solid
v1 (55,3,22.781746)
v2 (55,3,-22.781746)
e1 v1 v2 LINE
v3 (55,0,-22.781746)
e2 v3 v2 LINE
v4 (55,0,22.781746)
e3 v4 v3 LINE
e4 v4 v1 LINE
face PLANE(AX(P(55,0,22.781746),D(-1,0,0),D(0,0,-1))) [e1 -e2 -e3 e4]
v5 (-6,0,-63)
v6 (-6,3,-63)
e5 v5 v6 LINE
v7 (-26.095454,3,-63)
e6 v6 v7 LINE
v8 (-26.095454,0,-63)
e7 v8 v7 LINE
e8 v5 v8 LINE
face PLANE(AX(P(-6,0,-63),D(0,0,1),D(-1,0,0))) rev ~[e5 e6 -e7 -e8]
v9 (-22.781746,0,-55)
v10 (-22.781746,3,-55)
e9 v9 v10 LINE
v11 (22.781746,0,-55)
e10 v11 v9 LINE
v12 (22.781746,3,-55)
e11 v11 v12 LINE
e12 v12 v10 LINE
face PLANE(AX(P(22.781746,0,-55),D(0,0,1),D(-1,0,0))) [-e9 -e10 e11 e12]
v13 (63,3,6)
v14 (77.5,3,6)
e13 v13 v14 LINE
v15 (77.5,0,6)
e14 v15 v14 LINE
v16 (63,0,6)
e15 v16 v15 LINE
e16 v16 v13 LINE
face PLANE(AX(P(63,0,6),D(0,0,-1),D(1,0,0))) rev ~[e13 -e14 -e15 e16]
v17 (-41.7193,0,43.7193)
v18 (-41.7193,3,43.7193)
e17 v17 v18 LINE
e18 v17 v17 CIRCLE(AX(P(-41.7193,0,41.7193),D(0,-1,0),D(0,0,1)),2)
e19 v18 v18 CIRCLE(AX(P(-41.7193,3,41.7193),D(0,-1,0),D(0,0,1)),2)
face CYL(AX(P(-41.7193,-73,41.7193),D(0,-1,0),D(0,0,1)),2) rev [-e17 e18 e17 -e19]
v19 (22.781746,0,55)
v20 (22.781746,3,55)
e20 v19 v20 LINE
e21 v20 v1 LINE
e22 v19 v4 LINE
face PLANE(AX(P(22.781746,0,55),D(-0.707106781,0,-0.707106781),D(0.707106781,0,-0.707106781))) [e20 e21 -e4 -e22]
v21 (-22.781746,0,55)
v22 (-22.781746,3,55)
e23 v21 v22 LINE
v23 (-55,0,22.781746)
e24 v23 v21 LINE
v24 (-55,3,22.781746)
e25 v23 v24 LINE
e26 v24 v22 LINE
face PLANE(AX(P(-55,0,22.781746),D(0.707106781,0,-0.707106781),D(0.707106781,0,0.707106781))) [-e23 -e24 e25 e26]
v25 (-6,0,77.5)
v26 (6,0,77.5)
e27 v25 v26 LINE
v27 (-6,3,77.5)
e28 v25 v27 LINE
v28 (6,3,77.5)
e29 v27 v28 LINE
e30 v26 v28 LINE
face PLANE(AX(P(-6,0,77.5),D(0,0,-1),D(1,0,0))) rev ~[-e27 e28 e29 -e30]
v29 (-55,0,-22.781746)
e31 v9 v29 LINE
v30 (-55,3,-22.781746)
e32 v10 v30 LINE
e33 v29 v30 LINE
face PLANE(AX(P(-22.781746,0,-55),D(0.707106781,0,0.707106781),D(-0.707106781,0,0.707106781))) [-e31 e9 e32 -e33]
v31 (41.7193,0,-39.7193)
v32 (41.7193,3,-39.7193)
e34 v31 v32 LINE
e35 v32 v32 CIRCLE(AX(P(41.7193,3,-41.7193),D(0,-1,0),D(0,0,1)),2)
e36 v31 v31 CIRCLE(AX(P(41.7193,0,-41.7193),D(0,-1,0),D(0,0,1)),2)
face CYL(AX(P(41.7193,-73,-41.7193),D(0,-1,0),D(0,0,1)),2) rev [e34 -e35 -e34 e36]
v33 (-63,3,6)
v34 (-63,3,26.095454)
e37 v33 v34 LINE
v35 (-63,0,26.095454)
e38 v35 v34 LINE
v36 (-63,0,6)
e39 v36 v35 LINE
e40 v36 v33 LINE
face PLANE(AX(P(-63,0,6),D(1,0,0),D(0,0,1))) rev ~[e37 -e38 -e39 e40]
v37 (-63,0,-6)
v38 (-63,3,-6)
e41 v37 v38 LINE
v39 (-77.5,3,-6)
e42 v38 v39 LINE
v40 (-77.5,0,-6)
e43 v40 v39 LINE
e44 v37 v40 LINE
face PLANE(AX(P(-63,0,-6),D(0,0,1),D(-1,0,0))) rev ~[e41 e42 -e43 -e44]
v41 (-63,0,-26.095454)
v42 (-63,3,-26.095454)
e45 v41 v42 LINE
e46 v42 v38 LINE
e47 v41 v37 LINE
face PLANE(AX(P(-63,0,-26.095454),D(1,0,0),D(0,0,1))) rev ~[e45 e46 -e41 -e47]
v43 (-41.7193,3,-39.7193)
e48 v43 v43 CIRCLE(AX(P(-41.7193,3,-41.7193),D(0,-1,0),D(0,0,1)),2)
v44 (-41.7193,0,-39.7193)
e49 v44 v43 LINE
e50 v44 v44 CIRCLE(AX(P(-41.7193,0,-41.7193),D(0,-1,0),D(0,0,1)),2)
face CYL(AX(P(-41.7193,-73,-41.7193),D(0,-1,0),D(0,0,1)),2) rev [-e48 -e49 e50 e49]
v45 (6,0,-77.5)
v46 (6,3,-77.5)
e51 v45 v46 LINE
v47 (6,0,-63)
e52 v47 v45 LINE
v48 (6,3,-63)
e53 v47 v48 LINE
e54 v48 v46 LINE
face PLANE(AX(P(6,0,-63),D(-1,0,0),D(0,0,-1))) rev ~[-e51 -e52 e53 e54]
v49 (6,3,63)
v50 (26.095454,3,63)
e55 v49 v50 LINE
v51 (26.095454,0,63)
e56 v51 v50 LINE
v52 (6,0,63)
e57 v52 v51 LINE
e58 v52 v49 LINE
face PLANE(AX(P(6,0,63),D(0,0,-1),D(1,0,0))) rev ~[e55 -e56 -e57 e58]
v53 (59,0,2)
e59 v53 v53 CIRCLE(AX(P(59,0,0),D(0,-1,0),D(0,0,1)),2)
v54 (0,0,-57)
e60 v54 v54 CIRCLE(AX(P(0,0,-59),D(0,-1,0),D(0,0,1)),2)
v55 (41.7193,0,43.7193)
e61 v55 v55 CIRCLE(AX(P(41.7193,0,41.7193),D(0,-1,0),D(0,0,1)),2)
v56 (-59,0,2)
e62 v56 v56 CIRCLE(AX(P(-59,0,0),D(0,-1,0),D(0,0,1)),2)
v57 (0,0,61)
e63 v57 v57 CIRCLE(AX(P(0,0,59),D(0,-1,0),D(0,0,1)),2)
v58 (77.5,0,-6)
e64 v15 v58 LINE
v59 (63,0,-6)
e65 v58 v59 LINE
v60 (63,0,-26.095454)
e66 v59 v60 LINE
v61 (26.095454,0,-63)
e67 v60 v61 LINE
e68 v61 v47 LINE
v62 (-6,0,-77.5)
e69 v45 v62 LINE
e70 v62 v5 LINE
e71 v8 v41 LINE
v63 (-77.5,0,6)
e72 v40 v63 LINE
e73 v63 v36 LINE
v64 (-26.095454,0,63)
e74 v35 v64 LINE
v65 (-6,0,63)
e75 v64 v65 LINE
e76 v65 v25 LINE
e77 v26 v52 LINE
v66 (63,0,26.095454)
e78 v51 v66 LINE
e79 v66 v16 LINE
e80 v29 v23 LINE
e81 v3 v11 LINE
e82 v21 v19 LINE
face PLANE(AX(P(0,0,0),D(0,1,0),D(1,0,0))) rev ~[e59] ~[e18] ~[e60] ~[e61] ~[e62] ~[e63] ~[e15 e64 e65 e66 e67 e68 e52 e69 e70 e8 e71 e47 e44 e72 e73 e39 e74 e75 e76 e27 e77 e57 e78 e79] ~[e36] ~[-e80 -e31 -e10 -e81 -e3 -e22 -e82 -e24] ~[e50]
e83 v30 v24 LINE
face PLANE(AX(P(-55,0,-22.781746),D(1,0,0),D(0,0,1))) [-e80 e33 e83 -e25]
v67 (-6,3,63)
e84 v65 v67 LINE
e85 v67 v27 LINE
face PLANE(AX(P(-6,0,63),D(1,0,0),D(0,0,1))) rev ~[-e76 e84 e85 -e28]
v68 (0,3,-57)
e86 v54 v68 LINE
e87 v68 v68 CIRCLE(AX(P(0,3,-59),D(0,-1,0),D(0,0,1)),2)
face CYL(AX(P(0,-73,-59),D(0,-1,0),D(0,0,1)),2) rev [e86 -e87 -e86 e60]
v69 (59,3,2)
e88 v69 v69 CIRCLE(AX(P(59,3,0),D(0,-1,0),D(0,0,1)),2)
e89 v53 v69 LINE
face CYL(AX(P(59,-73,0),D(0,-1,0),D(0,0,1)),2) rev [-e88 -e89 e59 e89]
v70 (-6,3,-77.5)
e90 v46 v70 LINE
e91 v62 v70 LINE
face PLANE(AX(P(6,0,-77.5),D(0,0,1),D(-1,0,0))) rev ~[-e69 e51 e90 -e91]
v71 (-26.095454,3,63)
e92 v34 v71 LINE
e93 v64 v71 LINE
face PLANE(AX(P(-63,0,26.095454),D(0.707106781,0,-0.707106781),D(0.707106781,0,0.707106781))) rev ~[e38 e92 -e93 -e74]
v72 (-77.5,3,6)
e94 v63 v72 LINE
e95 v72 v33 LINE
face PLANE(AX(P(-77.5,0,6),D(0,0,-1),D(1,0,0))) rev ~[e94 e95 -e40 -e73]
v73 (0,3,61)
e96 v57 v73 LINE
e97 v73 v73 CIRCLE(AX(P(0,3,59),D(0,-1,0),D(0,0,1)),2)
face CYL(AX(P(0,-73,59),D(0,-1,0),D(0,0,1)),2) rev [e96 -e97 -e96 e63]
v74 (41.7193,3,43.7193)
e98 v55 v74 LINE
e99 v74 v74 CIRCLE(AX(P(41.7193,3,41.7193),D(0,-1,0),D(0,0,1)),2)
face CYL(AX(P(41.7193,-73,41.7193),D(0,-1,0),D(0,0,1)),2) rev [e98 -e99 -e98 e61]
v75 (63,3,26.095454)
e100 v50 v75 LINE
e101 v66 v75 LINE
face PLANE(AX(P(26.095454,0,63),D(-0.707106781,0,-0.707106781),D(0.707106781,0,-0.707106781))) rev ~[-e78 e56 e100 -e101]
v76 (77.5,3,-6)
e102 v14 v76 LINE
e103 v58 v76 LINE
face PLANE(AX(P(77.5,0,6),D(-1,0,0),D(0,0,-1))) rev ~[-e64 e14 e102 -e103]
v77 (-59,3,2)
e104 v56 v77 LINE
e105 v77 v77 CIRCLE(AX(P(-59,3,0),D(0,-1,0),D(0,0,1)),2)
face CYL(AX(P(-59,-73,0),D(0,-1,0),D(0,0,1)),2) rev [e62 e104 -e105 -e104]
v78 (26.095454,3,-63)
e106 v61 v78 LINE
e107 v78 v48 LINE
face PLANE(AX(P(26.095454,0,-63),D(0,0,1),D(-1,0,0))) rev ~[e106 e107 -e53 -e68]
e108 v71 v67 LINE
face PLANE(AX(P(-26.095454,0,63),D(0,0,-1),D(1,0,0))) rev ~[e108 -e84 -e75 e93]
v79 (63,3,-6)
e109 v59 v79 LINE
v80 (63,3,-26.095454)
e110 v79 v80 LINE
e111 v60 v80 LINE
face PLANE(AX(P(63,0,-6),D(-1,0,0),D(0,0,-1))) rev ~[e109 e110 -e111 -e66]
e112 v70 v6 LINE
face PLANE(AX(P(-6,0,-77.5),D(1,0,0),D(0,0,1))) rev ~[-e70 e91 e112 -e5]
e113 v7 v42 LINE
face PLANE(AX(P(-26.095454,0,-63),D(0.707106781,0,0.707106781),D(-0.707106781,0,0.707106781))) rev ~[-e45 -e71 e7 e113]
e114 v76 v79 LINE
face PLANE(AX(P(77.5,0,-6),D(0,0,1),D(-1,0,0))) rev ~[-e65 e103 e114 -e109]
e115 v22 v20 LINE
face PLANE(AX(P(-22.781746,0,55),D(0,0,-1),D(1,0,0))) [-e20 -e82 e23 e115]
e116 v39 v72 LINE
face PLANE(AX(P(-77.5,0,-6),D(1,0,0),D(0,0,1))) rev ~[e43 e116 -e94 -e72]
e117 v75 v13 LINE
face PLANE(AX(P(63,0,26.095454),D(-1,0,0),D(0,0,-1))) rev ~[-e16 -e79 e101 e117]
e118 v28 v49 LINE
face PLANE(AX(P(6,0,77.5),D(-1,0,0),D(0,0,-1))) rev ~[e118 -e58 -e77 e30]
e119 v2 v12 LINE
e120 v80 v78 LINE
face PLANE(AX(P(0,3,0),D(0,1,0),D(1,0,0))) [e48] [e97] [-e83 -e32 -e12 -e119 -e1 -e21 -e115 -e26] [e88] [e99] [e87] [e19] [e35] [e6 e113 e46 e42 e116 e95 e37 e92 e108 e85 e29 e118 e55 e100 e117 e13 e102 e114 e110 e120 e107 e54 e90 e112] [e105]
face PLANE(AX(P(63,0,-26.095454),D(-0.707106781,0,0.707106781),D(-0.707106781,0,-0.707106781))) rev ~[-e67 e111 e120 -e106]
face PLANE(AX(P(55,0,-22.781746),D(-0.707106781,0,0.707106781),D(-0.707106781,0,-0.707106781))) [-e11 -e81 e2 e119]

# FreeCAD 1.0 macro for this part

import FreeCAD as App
import Part
import Sketcher

V = App.Vector
Q = App.Units.Quantity


def add_polygon(sketch, points):
    """Adds a closed chain of lines whose ends are joined by coincident constraints."""
    first, n = sketch.GeometryCount, len(points)
    for a, b in zip(points, points[1:] + points[:1]):
        sketch.addGeometry(Part.LineSegment(App.Vector(*a, 0), App.Vector(*b, 0)), False)
    for i in range(n):
        sketch.addConstraint(Sketcher.Constraint("Coincident", first + i, 2, first + (i + 1) % n, 1))

doc = App.newDocument("Part")
params = doc.addObject("Spreadsheet::Sheet", "Params")
for row, (alias, value) in enumerate([
    ("sketch1_width", "12 mm"),
    ("sketch1_width2", "14.5 mm"),
    ("pad1_length", "3 mm"),
    ("sketch2_diameter", "4 mm"),
], start=1):
    params.set(f"A{row}", alias)
    params.set(f"B{row}", "=" + value)
    params.setAlias(f"B{row}", alias)

body = doc.addObject("PartDesign::Body", "Body")

sketch1 = body.newObject("Sketcher::SketchObject", "Sketch")
sketch1.AttachmentSupport = (doc.getObject("XZ_Plane"), [""])
sketch1.MapMode = "FlatFace"
add_polygon(sketch1, [(6, 77.5), (6, 63), (26.095454, 63), (63, 26.095454), (63, 6), (77.5, 6), (77.5, -6), (63, -6), (63, -26.095454), (26.095454, -63), (6, -63), (6, -77.5), (-6, -77.5), (-6, -63), (-26.095454, -63), (-63, -26.095454), (-63, -6), (-77.5, -6), (-77.5, 6), (-63, 6), (-63, 26.095454), (-26.095454, 63), (-6, 63), (-6, 77.5)])
add_polygon(sketch1, [(55, 22.781746), (22.781746, 55), (-22.781746, 55), (-55, 22.781746), (-55, -22.781746), (-22.781746, -55), (22.781746, -55), (55, -22.781746)])
sketch1.addConstraint([
    Sketcher.Constraint("Vertical", 0),
    Sketcher.Constraint("Horizontal", 1),
    Sketcher.Constraint("Vertical", 3),
    Sketcher.Constraint("Horizontal", 4),
    Sketcher.Constraint("Vertical", 5),
    Sketcher.Constraint("Horizontal", 6),
    Sketcher.Constraint("Vertical", 7),
    Sketcher.Constraint("Horizontal", 9),
    Sketcher.Constraint("Vertical", 10),
    Sketcher.Constraint("Horizontal", 11),
    Sketcher.Constraint("Vertical", 12),
    Sketcher.Constraint("Horizontal", 13),
    Sketcher.Constraint("Vertical", 15),
    Sketcher.Constraint("Horizontal", 16),
    Sketcher.Constraint("Vertical", 17),
    Sketcher.Constraint("Horizontal", 18),
    Sketcher.Constraint("Vertical", 19),
    Sketcher.Constraint("Horizontal", 21),
    Sketcher.Constraint("Vertical", 22),
    Sketcher.Constraint("Horizontal", 23),
    Sketcher.Constraint("Horizontal", 25),
    Sketcher.Constraint("Vertical", 27),
    Sketcher.Constraint("Horizontal", 29),
    Sketcher.Constraint("Vertical", 31),
    Sketcher.Constraint("Symmetric", 0, 2, 12, 2, -1, 1),
    Sketcher.Constraint("Symmetric", 2, 2, 14, 2, -1, 1),
    Sketcher.Constraint("Symmetric", 4, 2, 16, 2, -1, 1),
    Sketcher.Constraint("Symmetric", 6, 2, 18, 2, -1, 1),
    Sketcher.Constraint("Symmetric", 8, 2, 20, 2, -1, 1),
    Sketcher.Constraint("Symmetric", 10, 2, 22, 2, -1, 1),
    Sketcher.Constraint("Symmetric", 24, 2, 28, 2, -1, 1),
    Sketcher.Constraint("Symmetric", 26, 2, 30, 2, -1, 1),
    Sketcher.Constraint("Symmetric", 9, 2, 12, 2, -2),
    Sketcher.Constraint("Symmetric", 7, 2, 14, 2, -2),
    Sketcher.Constraint("Perpendicular", 2, 8),
    Sketcher.Constraint("Perpendicular", 8, 14),
    Sketcher.Constraint("Perpendicular", 14, 20),
    Sketcher.Constraint("Perpendicular", 20, 24),
    Sketcher.Constraint("Perpendicular", 24, 26),
    Sketcher.Constraint("Perpendicular", 26, 28),
    Sketcher.Constraint("Perpendicular", 28, 30),
    Sketcher.Constraint("Horizontal", 6, 2, 15, 2),
    Sketcher.Constraint("Horizontal", 27, 2, 30, 2),
    Sketcher.Constraint("Vertical", 1, 2, 8, 2),
    Sketcher.Constraint("Equal", 18, 0),
    Sketcher.Constraint("Equal", 21, 3),
    Sketcher.Constraint("Equal", 23, 5),
    Sketcher.Constraint("Equal", 29, 27),
    Sketcher.Constraint("DistanceX", 11, 2, 11, 1, Q("12 mm")),
    Sketcher.Constraint("DistanceX", 4, 1, 4, 2, Q("14.5 mm")),
    Sketcher.Constraint("DistanceY", -1, 1, 0, 2, Q("63 mm")),
    Sketcher.Constraint("DistanceY", -1, 1, 24, 2, Q("55 mm")),
    Sketcher.Constraint("DistanceX", 25, 2, 25, 1, Q("45.563492 mm")),
    Sketcher.Constraint("Distance", 2, Q("52.190909 mm")),
])
sketch1.setExpression("Constraints[80]", "Params.sketch1_width")
sketch1.setExpression("Constraints[81]", "Params.sketch1_width2")
pad1 = body.newObject("PartDesign::Pad", "Pad")
pad1.Profile = sketch1
pad1.setExpression("Length", "Params.pad1_length")
pad1.Reversed = True

sketch2 = body.newObject("Sketcher::SketchObject", "Sketch001")
sketch2.AttachmentSupport = (doc.getObject("XZ_Plane"), [""])
sketch2.MapMode = "FlatFace"
sketch2.AttachmentOffset = App.Placement(V(0, 0, -3), App.Rotation())
sketch2.addGeometry([
    Part.Circle(V(0, -59, 0), V(0, 0, 1), 2),
    Part.Circle(V(41.7193, -41.7193, 0), V(0, 0, 1), 2),
    Part.Circle(V(59, 0, 0), V(0, 0, 1), 2),
    Part.Circle(V(41.7193, 41.7193, 0), V(0, 0, 1), 2),
    Part.Circle(V(0, 59, 0), V(0, 0, 1), 2),
    Part.Circle(V(-41.7193, 41.7193, 0), V(0, 0, 1), 2),
    Part.Circle(V(-59, 0, 0), V(0, 0, 1), 2),
    Part.Circle(V(-41.7193, -41.7193, 0), V(0, 0, 1), 2),
], False)
sketch2.addConstraint([
    Sketcher.Constraint("Equal", 0, 1),
    Sketcher.Constraint("Equal", 1, 2),
    Sketcher.Constraint("Equal", 2, 3),
    Sketcher.Constraint("Equal", 3, 4),
    Sketcher.Constraint("Equal", 4, 5),
    Sketcher.Constraint("Equal", 5, 6),
    Sketcher.Constraint("Equal", 6, 7),
    Sketcher.Constraint("Symmetric", 0, 3, 4, 3, -1, 1),
    Sketcher.Constraint("Symmetric", 1, 3, 5, 3, -1, 1),
    Sketcher.Constraint("Symmetric", 2, 3, 6, 3, -1, 1),
    Sketcher.Constraint("Symmetric", 3, 3, 7, 3, -1, 1),
    Sketcher.Constraint("Symmetric", 3, 3, 5, 3, -2),
    Sketcher.Constraint("PointOnObject", 0, 3, -2),
    Sketcher.Constraint("PointOnObject", 2, 3, -1),
    Sketcher.Constraint("Diameter", 0, Q("4 mm")),
    Sketcher.Constraint("DistanceY", 0, 3, -1, 1, Q("59 mm")),
    Sketcher.Constraint("DistanceX", -1, 1, 2, 3, Q("59 mm")),
    Sketcher.Constraint("DistanceX", -1, 1, 1, 3, Q("41.7193 mm")),
    Sketcher.Constraint("DistanceY", 1, 3, -1, 1, Q("41.7193 mm")),
])
sketch2.setExpression("Constraints[14]", "Params.sketch2_diameter")
pocket1 = body.newObject("PartDesign::Pocket", "Pocket")
pocket1.Profile = sketch2
pocket1.Type = "ThroughAll"
pocket1.Midplane = True

doc.recompute()
